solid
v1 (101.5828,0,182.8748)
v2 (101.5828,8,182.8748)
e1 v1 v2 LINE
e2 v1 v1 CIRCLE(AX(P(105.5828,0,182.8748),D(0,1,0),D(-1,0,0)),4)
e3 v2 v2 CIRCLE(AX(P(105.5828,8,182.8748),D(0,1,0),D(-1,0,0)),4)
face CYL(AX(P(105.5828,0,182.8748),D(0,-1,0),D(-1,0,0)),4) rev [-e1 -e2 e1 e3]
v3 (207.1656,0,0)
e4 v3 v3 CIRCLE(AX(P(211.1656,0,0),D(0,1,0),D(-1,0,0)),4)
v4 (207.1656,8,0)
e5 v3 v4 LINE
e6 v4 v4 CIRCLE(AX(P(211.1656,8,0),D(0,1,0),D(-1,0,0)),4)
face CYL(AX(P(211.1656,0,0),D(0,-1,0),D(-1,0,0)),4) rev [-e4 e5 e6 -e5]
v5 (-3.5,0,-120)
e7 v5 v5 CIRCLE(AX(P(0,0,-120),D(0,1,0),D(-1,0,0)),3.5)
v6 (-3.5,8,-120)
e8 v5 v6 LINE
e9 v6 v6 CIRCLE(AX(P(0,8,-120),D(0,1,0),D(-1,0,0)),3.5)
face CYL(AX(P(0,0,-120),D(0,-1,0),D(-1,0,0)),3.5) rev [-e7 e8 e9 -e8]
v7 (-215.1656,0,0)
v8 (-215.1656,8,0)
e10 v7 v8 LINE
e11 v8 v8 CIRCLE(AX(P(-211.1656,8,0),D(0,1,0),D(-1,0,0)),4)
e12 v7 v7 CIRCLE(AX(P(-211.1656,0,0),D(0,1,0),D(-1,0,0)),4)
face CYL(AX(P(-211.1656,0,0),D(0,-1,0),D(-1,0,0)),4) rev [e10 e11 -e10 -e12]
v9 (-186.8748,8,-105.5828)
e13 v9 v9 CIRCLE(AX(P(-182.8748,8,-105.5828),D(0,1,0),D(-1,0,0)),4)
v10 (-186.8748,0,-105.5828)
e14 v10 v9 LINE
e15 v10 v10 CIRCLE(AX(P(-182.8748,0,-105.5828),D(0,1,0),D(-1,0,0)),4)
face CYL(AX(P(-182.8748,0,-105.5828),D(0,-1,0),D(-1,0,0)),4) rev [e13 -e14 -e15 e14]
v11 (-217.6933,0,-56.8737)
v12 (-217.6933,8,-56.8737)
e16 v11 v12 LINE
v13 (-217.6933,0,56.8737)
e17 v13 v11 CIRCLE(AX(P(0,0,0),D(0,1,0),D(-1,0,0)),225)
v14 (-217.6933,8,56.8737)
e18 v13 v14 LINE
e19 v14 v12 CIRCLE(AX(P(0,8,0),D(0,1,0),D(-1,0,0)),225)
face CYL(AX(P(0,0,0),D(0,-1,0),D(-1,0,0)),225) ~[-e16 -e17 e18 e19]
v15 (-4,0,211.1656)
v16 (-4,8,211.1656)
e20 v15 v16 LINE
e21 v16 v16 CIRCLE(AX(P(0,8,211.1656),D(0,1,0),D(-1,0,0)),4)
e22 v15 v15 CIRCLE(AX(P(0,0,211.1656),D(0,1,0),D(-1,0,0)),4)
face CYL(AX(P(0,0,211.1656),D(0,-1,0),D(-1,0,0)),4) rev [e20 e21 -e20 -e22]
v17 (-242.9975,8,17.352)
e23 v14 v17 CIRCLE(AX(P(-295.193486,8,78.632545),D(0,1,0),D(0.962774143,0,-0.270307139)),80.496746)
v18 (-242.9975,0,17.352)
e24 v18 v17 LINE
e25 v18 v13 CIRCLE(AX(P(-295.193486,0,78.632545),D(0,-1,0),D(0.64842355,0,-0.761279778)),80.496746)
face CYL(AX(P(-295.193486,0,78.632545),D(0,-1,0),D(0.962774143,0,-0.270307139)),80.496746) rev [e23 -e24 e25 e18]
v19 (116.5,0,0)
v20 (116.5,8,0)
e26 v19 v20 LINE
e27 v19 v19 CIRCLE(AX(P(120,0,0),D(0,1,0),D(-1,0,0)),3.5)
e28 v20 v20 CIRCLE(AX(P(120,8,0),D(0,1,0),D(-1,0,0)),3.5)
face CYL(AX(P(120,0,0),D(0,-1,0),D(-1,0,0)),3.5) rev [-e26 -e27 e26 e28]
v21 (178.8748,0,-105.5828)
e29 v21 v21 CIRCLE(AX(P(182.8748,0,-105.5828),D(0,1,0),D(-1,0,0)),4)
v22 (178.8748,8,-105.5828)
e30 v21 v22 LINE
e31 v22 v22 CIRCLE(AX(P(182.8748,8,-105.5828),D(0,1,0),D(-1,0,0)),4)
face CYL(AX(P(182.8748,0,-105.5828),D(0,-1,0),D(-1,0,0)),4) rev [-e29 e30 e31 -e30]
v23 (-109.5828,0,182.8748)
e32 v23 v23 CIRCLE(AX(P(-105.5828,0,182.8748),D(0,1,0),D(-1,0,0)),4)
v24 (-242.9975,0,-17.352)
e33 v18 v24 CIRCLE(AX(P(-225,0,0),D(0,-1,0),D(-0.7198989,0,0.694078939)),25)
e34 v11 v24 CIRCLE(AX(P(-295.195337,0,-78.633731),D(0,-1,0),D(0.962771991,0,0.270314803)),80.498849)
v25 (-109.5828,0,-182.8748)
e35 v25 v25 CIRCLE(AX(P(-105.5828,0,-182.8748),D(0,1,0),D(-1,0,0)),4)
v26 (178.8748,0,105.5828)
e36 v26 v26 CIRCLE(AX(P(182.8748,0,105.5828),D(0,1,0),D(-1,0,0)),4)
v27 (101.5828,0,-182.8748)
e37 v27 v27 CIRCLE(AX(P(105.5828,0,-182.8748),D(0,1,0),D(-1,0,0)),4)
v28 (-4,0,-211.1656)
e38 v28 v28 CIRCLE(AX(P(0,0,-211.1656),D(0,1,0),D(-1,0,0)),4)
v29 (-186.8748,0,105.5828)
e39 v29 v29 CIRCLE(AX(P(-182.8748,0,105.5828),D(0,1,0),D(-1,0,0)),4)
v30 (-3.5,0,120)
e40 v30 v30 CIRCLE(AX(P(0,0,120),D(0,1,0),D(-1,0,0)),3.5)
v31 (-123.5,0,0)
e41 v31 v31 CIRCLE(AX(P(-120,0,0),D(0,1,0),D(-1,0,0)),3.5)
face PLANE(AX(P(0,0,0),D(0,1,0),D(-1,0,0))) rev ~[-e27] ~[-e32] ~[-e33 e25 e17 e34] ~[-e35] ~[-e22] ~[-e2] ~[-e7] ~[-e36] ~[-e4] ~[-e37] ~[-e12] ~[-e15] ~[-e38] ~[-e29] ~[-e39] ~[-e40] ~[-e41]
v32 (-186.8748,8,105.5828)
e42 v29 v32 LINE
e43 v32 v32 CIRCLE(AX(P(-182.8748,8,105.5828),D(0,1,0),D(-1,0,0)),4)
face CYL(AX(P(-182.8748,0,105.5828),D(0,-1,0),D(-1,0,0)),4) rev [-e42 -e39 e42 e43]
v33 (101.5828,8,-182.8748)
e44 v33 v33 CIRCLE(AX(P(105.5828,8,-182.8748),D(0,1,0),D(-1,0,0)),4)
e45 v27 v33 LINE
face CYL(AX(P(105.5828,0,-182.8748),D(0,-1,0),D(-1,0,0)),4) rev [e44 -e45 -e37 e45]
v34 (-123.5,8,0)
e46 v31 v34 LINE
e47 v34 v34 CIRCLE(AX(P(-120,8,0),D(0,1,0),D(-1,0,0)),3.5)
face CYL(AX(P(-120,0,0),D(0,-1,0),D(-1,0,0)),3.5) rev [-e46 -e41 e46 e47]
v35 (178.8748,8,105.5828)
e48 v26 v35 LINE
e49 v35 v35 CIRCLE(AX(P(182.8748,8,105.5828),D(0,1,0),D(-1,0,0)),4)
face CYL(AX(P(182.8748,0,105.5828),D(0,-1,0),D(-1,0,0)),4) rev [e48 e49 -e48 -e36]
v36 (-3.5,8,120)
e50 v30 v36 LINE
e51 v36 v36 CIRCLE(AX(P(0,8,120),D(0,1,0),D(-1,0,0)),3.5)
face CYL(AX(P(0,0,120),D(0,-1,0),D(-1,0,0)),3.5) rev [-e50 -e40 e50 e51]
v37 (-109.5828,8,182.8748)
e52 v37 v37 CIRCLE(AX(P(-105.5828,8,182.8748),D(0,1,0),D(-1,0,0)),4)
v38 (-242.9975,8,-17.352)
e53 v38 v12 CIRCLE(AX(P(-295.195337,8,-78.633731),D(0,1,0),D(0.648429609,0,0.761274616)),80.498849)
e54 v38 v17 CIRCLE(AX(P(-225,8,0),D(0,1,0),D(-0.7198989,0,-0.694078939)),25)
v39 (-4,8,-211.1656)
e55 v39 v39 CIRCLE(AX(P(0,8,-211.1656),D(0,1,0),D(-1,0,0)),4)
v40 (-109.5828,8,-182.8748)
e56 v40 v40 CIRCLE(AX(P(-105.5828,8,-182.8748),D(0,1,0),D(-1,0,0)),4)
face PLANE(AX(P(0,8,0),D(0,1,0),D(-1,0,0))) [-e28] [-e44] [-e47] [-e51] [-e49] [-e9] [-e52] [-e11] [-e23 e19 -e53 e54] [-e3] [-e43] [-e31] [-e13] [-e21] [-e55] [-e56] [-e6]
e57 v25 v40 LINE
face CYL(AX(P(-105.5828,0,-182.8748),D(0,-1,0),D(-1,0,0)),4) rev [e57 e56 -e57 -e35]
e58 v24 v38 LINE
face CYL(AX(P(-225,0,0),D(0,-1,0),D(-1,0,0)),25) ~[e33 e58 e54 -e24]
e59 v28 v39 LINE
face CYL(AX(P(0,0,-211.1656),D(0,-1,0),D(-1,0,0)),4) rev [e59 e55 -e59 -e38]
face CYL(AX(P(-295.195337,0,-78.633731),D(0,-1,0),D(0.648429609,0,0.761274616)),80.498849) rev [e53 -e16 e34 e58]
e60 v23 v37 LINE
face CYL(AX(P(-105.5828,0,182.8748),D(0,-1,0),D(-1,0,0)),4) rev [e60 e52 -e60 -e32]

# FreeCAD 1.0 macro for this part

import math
import FreeCAD as App
import Part
import Sketcher
from FreeCAD import Vector

doc = App.newDocument("Part")
body = doc.addObject("PartDesign::Body", "Body")

sketch1 = body.newObject("Sketcher::SketchObject", "Sketch")
sketch1.AttachmentSupport = (doc.getObject("XZ_Plane"), [""])
sketch1.MapMode = "FlatFace"
sketch1.addGeometry([
    Part.ArcOfCircle(Part.Circle(Vector(0, 0, 0), Vector(0, 0, 1), 225), math.radians(-165), math.radians(165)),
    Part.ArcOfCircle(Part.Circle(Vector(-295.2, -78.6, 0), Vector(0, 0, 1), 80.5), math.radians(16), math.radians(50)),
    Part.ArcOfCircle(Part.Circle(Vector(-225, 0, 0), Vector(0, 0, 1), 25), math.radians(136), math.radians(224)),
    Part.ArcOfCircle(Part.Circle(Vector(-295.2, 78.6, 0), Vector(0, 0, 1), 80.5), math.radians(-50), math.radians(-16)),
    Part.Circle(Vector(105.6, -182.9, 0), Vector(0, 0, 1), 4),
    Part.Circle(Vector(0, -211.2, 0), Vector(0, 0, 1), 4),
    Part.Circle(Vector(0, -120, 0), Vector(0, 0, 1), 3.5),
    Part.Circle(Vector(182.9, -105.6, 0), Vector(0, 0, 1), 4),
    Part.Circle(Vector(-105.6, -182.9, 0), Vector(0, 0, 1), 4),
    Part.Circle(Vector(-182.9, -105.6, 0), Vector(0, 0, 1), 4),
    Part.Circle(Vector(211.2, 0, 0), Vector(0, 0, 1), 4),
    Part.Circle(Vector(120, 0, 0), Vector(0, 0, 1), 3.5),
    Part.Circle(Vector(182.9, 105.6, 0), Vector(0, 0, 1), 4),
    Part.Circle(Vector(0, 120, 0), Vector(0, 0, 1), 3.5),
    Part.Circle(Vector(105.6, 182.9, 0), Vector(0, 0, 1), 4),
    Part.Circle(Vector(0, 211.2, 0), Vector(0, 0, 1), 4),
    Part.Circle(Vector(-120, 0, 0), Vector(0, 0, 1), 3.5),
    Part.Circle(Vector(-182.9, 105.6, 0), Vector(0, 0, 1), 4),
    Part.Circle(Vector(-105.6, 182.9, 0), Vector(0, 0, 1), 4),
    Part.Circle(Vector(-211.2, 0, 0), Vector(0, 0, 1), 4),
], False)
sketch1.addConstraint([
    Sketcher.Constraint("Coincident", 0, 1, 1, 1),
    Sketcher.Constraint("Coincident", 1, 2, 2, 2),
    Sketcher.Constraint("Coincident", 2, 1, 3, 1),
    Sketcher.Constraint("Coincident", 3, 2, 0, 2),
    Sketcher.Constraint("Coincident", 0, 3, -1, 1),
    Sketcher.Constraint("Equal", 4, 5),
    Sketcher.Constraint("Equal", 5, 7),
    Sketcher.Constraint("Equal", 7, 8),
    Sketcher.Constraint("Equal", 8, 9),
    Sketcher.Constraint("Equal", 9, 10),
    Sketcher.Constraint("Equal", 6, 11),
    Sketcher.Constraint("Equal", 10, 12),
    Sketcher.Constraint("Equal", 11, 13),
    Sketcher.Constraint("Equal", 12, 14),
    Sketcher.Constraint("Equal", 14, 15),
    Sketcher.Constraint("Equal", 13, 16),
    Sketcher.Constraint("Equal", 15, 17),
    Sketcher.Constraint("Equal", 17, 18),
    Sketcher.Constraint("Equal", 18, 19),
    Sketcher.Constraint("Symmetric", 9, 3, 12, 3, -1, 1),
    Sketcher.Constraint("Symmetric", 6, 3, 13, 3, -1, 1),
    Sketcher.Constraint("Symmetric", 8, 3, 14, 3, -1, 1),
    Sketcher.Constraint("Symmetric", 5, 3, 15, 3, -1, 1),
    Sketcher.Constraint("Symmetric", 11, 3, 16, 3, -1, 1),
    Sketcher.Constraint("Symmetric", 7, 3, 17, 3, -1, 1),
    Sketcher.Constraint("Symmetric", 4, 3, 18, 3, -1, 1),
    Sketcher.Constraint("Symmetric", 10, 3, 19, 3, -1, 1),
    Sketcher.Constraint("Symmetric", 4, 3, 8, 3, -2),
    Sketcher.Constraint("Symmetric", 7, 3, 9, 3, -2),
    Sketcher.Constraint("Symmetric", 1, 2, 2, 1, -1),
    Sketcher.Constraint("PointOnObject", 5, 3, -2),
    Sketcher.Constraint("PointOnObject", 6, 3, -2),
    Sketcher.Constraint("PointOnObject", 10, 3, -1),
    Sketcher.Constraint("PointOnObject", 11, 3, -1),
    Sketcher.Constraint("Vertical", 0, 1, 3, 2),
    Sketcher.Constraint("Diameter", 4, 8.0),
    Sketcher.Constraint("Diameter", 6, 7.0),
    Sketcher.Constraint("Radius", 0, 225.0),
    Sketcher.Constraint("Radius", 2, 25.0),
    Sketcher.Constraint("DistanceY", 6, 3, -1, 1, 120.0),
    Sketcher.Constraint("DistanceX", -1, 1, 11, 3, 120.0),
    Sketcher.Constraint("DistanceX", 2, 3, -1, 1, 225.0),
    Sketcher.Constraint("Radius", 1, 80.4988),
    Sketcher.Constraint("Radius", 3, 80.4967),
    Sketcher.Constraint("DistanceY", 1, 3, 0, 1, 21.76),
    Sketcher.Constraint("DistanceY", 1, 2, -1, 1, 17.352),
    Sketcher.Constraint("DistanceY", 4, 3, 1, 3, 104.241),
    Sketcher.Constraint("DistanceX", 4, 3, 7, 3, 77.292),
    Sketcher.Constraint("DistanceY", 4, 3, 7, 3, 77.292),
    Sketcher.Constraint("DistanceX", 3, 3, 19, 3, 84.028),
    Sketcher.Constraint("DistanceX", -1, 1, 4, 3, 105.5828),
    Sketcher.Constraint("DistanceY", 5, 3, -1, 1, 211.1656),
])
pad1 = body.newObject("PartDesign::Pad", "Pad")
pad1.Profile = sketch1
pad1.Length = 8
pad1.Reversed = True

doc.recompute()
